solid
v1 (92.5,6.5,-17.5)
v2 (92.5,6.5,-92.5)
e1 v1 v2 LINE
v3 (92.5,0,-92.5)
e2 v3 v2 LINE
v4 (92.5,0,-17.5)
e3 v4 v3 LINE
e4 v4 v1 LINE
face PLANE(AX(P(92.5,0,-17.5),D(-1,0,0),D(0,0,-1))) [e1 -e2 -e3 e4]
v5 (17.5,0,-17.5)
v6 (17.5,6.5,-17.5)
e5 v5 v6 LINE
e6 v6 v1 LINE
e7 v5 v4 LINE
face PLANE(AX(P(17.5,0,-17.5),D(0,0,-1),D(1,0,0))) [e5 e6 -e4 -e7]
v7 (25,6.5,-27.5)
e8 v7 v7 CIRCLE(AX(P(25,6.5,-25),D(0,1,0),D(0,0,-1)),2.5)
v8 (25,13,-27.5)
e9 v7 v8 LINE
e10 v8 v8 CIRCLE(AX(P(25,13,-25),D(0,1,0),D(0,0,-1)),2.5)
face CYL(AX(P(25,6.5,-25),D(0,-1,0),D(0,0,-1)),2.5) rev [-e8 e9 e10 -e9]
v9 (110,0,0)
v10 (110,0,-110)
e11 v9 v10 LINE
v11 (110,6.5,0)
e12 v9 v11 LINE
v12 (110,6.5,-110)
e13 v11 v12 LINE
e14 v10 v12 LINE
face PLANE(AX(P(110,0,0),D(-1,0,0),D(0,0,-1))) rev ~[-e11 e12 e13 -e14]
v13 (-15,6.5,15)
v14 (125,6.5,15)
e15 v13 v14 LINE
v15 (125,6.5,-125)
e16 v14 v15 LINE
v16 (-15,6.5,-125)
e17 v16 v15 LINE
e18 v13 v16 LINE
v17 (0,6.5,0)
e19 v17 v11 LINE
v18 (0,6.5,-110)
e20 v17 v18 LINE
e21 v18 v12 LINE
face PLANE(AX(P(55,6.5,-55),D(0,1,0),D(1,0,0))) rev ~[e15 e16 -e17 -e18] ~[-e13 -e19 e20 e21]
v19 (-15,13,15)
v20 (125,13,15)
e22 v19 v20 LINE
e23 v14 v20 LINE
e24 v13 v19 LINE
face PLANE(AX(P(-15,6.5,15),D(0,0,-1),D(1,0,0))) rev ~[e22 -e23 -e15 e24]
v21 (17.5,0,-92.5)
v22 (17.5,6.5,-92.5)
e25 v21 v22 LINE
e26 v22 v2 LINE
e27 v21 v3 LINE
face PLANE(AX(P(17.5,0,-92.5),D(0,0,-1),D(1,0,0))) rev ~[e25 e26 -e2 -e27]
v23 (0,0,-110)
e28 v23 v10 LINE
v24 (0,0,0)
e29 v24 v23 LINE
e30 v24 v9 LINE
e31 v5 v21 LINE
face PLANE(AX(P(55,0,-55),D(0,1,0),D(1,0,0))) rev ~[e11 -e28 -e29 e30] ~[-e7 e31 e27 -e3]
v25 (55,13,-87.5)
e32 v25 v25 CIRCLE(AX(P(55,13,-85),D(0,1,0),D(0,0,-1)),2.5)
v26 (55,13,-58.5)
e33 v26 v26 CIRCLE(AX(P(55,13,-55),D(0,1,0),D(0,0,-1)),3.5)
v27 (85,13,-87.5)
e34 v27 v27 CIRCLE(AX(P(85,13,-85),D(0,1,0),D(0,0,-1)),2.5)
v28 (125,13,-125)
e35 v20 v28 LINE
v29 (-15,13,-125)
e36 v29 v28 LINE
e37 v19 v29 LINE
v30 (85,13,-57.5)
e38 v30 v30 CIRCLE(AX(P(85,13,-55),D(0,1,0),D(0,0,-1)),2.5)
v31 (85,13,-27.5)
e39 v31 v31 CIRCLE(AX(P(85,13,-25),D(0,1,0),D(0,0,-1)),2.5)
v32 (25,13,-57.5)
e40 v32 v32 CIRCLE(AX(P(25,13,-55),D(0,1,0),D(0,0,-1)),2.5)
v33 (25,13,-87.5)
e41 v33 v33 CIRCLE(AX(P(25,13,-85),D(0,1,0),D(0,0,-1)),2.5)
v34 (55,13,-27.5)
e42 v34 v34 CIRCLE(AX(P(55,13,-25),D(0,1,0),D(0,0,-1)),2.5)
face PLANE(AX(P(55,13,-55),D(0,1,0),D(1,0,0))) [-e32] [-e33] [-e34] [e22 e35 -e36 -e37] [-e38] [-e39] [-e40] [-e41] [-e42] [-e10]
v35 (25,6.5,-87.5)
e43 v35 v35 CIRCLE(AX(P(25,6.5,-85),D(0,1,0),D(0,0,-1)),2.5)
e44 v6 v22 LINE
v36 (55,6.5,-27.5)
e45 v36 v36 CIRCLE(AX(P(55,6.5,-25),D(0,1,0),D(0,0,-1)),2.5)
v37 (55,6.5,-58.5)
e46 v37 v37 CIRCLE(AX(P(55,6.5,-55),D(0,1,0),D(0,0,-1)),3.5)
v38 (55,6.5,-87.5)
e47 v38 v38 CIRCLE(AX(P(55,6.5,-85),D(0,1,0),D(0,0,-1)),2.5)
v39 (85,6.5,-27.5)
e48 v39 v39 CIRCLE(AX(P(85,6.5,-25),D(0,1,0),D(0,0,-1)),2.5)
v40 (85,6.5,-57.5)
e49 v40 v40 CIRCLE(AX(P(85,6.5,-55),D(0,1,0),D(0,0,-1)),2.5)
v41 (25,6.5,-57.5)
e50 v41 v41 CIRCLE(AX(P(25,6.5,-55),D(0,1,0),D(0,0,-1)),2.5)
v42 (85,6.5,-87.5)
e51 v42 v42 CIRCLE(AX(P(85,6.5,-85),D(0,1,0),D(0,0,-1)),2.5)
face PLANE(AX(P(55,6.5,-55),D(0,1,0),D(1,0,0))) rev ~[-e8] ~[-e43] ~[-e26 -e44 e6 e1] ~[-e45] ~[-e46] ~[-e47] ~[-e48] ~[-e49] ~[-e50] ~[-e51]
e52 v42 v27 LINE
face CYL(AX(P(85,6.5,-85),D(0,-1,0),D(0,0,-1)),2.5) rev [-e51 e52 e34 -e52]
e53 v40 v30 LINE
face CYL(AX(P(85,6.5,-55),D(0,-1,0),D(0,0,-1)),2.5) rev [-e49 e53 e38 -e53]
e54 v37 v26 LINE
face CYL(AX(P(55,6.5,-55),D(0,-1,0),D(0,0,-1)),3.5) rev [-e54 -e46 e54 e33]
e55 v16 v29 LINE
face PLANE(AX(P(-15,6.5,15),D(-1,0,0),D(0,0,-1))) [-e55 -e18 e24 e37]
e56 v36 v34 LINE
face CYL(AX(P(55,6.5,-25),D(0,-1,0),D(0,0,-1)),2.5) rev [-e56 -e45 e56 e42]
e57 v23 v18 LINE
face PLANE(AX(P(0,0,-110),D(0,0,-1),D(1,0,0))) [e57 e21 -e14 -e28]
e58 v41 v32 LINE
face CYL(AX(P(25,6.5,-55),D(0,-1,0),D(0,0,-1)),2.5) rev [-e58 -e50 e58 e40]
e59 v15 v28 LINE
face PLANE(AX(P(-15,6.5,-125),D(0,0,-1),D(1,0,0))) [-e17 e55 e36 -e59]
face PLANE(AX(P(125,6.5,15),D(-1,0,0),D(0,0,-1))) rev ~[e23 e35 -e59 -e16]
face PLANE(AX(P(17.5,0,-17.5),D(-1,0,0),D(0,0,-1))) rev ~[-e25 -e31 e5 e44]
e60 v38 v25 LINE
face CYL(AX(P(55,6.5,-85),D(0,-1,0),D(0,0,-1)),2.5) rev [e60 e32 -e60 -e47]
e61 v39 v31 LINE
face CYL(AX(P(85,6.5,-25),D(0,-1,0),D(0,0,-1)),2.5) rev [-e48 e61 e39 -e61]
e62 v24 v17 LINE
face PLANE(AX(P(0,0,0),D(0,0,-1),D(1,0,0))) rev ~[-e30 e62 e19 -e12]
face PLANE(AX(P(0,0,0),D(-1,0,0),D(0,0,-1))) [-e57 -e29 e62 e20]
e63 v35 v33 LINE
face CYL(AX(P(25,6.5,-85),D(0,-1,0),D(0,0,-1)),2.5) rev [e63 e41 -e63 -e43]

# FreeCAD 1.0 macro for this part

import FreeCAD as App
import Part
import Sketcher
from FreeCAD import Vector

doc = App.newDocument("Part")
body = doc.addObject("PartDesign::Body", "Body")

sketch1 = body.newObject("Sketcher::SketchObject", "Sketch")
sketch1.AttachmentSupport = (doc.getObject("XZ_Plane"), [""])
sketch1.MapMode = "FlatFace"
sketch1.addGeometry([
    Part.LineSegment(Vector(0, -110, 0), Vector(0, 0, 0)),
    Part.LineSegment(Vector(0, 0, 0), Vector(110, 0, 0)),
    Part.LineSegment(Vector(110, 0, 0), Vector(110, -110, 0)),
    Part.LineSegment(Vector(110, -110, 0), Vector(0, -110, 0)),
    Part.LineSegment(Vector(92.5, -17.5, 0), Vector(17.5, -17.5, 0)),
    Part.LineSegment(Vector(17.5, -17.5, 0), Vector(17.5, -92.5, 0)),
    Part.LineSegment(Vector(17.5, -92.5, 0), Vector(92.5, -92.5, 0)),
    Part.LineSegment(Vector(92.5, -92.5, 0), Vector(92.5, -17.5, 0)),
], False)
sketch1.addConstraint([
    Sketcher.Constraint("Coincident", 0, 2, 1, 1),
    Sketcher.Constraint("Coincident", 1, 2, 2, 1),
    Sketcher.Constraint("Coincident", 2, 2, 3, 1),
    Sketcher.Constraint("Coincident", 3, 2, 0, 1),
    Sketcher.Constraint("Coincident", 4, 2, 5, 1),
    Sketcher.Constraint("Coincident", 5, 2, 6, 1),
    Sketcher.Constraint("Coincident", 6, 2, 7, 1),
    Sketcher.Constraint("Coincident", 7, 2, 4, 1),
    Sketcher.Constraint("Vertical", 0),
    Sketcher.Constraint("Horizontal", 1),
    Sketcher.Constraint("Vertical", 2),
    Sketcher.Constraint("Horizontal", 3),
    Sketcher.Constraint("Horizontal", 4),
    Sketcher.Constraint("Vertical", 5),
    Sketcher.Constraint("Horizontal", 6),
    Sketcher.Constraint("Vertical", 7),
    Sketcher.Constraint("Coincident", 0, 2, -1, 1),
    Sketcher.Constraint("Equal", 3, 0),
    Sketcher.Constraint("Equal", 6, 5),
    Sketcher.Constraint("DistanceX", 1, 1, 1, 2, 110.0),
    Sketcher.Constraint("DistanceX", 4, 2, 4, 1, 75.0),
    Sketcher.Constraint("DistanceX", -1, 1, 4, 2, 17.5),
    Sketcher.Constraint("DistanceY", 4, 2, -1, 1, 17.5),
])
pad1 = body.newObject("PartDesign::Pad", "Pad")
pad1.Profile = sketch1
pad1.Length = 6.5
pad1.Reversed = True

sketch2 = body.newObject("Sketcher::SketchObject", "Sketch001")
sketch2.AttachmentSupport = (doc.getObject("XZ_Plane"), [""])
sketch2.MapMode = "FlatFace"
sketch2.AttachmentOffset = App.Placement(Vector(0, 0, -6.5), App.Rotation())
sketch2.addGeometry([
    Part.LineSegment(Vector(-15, -125, 0), Vector(-15, 15, 0)),
    Part.LineSegment(Vector(-15, 15, 0), Vector(125, 15, 0)),
    Part.LineSegment(Vector(125, 15, 0), Vector(125, -125, 0)),
    Part.LineSegment(Vector(125, -125, 0), Vector(-15, -125, 0)),
    Part.Circle(Vector(25, -25, 0), Vector(0, 0, 1), 2.5),
    Part.Circle(Vector(55, -25, 0), Vector(0, 0, 1), 2.5),
    Part.Circle(Vector(85, -25, 0), Vector(0, 0, 1), 2.5),
    Part.Circle(Vector(25, -55, 0), Vector(0, 0, 1), 2.5),
    Part.Circle(Vector(25, -85, 0), Vector(0, 0, 1), 2.5),
    Part.Circle(Vector(55, -55, 0), Vector(0, 0, 1), 3.5),
    Part.Circle(Vector(85, -55, 0), Vector(0, 0, 1), 2.5),
    Part.Circle(Vector(55, -85, 0), Vector(0, 0, 1), 2.5),
    Part.Circle(Vector(85, -85, 0), Vector(0, 0, 1), 2.5),
], False)
sketch2.addConstraint([
    Sketcher.Constraint("Coincident", 0, 2, 1, 1),
    Sketcher.Constraint("Coincident", 1, 2, 2, 1),
    Sketcher.Constraint("Coincident", 2, 2, 3, 1),
    Sketcher.Constraint("Coincident", 3, 2, 0, 1),
    Sketcher.Constraint("Vertical", 0),
    Sketcher.Constraint("Horizontal", 1),
    Sketcher.Constraint("Vertical", 2),
    Sketcher.Constraint("Horizontal", 3),
    Sketcher.Constraint("Equal", 4, 5),
    Sketcher.Constraint("Equal", 5, 6),
    Sketcher.Constraint("Equal", 6, 7),
    Sketcher.Constraint("Equal", 7, 8),
    Sketcher.Constraint("Equal", 8, 10),
    Sketcher.Constraint("Equal", 10, 11),
    Sketcher.Constraint("Equal", 11, 12),
    Sketcher.Constraint("Horizontal", 4, 3, 5, 3),
    Sketcher.Constraint("Horizontal", 5, 3, 6, 3),
    Sketcher.Constraint("Horizontal", 7, 3, 9, 3),
    Sketcher.Constraint("Horizontal", 9, 3, 10, 3),
    Sketcher.Constraint("Horizontal", 8, 3, 11, 3),
    Sketcher.Constraint("Horizontal", 11, 3, 12, 3),
    Sketcher.Constraint("Vertical", 4, 3, 7, 3),
    Sketcher.Constraint("Vertical", 7, 3, 8, 3),
    Sketcher.Constraint("Vertical", 5, 3, 9, 3),
    Sketcher.Constraint("Vertical", 6, 3, 10, 3),
    Sketcher.Constraint("Vertical", 9, 3, 11, 3),
    Sketcher.Constraint("Vertical", 10, 3, 12, 3),
    Sketcher.Constraint("Equal", 3, 0),
    Sketcher.Constraint("Diameter", 4, 5.0),
    Sketcher.Constraint("Diameter", 9, 7.0),
    Sketcher.Constraint("DistanceX", 1, 1, 1, 2, 140.0),
    Sketcher.Constraint("DistanceX", -1, 1, 4, 3, 25.0),
    Sketcher.Constraint("DistanceY", 4, 3, -1, 1, 25.0),
    Sketcher.Constraint("DistanceX", -1, 1, 5, 3, 55.0),
    Sketcher.Constraint("DistanceX", -1, 1, 6, 3, 85.0),
    Sketcher.Constraint("DistanceY", 7, 3, -1, 1, 55.0),
    Sketcher.Constraint("DistanceY", 8, 3, -1, 1, 85.0),
    Sketcher.Constraint("DistanceX", 0, 2, -1, 1, 15.0),
    Sketcher.Constraint("DistanceY", -1, 1, 0, 2, 15.0),
])
pad2 = body.newObject("PartDesign::Pad", "Pad001")
pad2.Profile = sketch2
pad2.Length = 6.5
pad2.Reversed = True

doc.recompute()
